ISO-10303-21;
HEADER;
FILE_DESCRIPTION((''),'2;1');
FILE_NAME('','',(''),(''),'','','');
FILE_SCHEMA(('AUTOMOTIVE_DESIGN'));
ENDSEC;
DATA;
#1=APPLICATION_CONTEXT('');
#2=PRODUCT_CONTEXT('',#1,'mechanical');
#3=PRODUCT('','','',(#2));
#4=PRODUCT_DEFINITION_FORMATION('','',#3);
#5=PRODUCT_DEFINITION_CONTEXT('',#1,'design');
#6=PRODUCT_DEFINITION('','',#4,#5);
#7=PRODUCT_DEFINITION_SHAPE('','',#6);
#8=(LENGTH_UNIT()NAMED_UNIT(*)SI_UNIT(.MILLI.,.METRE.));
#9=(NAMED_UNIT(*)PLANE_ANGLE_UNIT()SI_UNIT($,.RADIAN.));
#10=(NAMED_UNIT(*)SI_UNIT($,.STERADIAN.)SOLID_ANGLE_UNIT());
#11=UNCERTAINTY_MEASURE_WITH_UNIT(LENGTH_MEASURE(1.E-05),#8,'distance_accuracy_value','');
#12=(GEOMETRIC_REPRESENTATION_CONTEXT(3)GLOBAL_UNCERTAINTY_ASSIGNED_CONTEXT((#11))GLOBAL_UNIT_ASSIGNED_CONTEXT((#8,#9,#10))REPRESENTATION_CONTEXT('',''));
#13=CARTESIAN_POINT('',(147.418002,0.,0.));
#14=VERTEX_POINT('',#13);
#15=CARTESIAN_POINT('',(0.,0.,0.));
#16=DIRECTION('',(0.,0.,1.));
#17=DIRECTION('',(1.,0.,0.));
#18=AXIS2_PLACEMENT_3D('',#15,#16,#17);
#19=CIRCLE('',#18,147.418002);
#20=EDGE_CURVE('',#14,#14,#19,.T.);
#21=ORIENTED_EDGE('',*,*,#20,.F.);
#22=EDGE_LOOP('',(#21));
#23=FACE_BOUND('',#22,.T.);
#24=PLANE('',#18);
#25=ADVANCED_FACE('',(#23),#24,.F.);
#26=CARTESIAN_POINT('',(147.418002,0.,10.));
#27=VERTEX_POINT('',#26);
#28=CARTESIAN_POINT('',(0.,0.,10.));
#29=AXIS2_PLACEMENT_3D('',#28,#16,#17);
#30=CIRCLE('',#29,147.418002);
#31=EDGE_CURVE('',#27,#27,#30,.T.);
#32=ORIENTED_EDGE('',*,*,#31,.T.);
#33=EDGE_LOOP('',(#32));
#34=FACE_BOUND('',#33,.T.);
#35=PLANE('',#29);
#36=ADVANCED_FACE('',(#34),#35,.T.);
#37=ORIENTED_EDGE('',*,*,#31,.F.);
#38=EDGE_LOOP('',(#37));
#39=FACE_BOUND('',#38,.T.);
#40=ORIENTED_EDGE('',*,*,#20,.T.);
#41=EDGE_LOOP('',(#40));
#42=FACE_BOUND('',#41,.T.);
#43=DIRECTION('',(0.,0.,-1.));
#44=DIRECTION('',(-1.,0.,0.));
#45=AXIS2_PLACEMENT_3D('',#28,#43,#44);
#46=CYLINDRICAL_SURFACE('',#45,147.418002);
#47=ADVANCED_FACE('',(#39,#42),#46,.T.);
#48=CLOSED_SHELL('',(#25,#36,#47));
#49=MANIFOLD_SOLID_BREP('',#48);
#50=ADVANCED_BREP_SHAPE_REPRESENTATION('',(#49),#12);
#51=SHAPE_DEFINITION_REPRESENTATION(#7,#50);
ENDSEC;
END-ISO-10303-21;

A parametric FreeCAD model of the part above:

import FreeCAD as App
import Part
import Sketcher

V = App.Vector

doc = App.newDocument("Part")
body = doc.addObject("PartDesign::Body", "Body")

sketch1 = doc.addObject("Sketcher::SketchObject", "Sketch")
body.addObject(sketch1)
sketch1.AttachmentSupport = (doc.XY_Plane, [""])
sketch1.MapMode = "FlatFace"
sketch1.addGeometry(Part.Circle(V(0, 0, 0), V(0, 0, 1), 147), False)
sketch1.addConstraint(Sketcher.Constraint("Coincident", 0, 3, -1, 1))
sketch1.addConstraint(Sketcher.Constraint("Diameter", 0, 294.836005))
pad1 = doc.addObject("PartDesign::Pad", "Pad")
body.addObject(pad1)
pad1.Profile = sketch1
pad1.Length = 10

doc.recompute()
